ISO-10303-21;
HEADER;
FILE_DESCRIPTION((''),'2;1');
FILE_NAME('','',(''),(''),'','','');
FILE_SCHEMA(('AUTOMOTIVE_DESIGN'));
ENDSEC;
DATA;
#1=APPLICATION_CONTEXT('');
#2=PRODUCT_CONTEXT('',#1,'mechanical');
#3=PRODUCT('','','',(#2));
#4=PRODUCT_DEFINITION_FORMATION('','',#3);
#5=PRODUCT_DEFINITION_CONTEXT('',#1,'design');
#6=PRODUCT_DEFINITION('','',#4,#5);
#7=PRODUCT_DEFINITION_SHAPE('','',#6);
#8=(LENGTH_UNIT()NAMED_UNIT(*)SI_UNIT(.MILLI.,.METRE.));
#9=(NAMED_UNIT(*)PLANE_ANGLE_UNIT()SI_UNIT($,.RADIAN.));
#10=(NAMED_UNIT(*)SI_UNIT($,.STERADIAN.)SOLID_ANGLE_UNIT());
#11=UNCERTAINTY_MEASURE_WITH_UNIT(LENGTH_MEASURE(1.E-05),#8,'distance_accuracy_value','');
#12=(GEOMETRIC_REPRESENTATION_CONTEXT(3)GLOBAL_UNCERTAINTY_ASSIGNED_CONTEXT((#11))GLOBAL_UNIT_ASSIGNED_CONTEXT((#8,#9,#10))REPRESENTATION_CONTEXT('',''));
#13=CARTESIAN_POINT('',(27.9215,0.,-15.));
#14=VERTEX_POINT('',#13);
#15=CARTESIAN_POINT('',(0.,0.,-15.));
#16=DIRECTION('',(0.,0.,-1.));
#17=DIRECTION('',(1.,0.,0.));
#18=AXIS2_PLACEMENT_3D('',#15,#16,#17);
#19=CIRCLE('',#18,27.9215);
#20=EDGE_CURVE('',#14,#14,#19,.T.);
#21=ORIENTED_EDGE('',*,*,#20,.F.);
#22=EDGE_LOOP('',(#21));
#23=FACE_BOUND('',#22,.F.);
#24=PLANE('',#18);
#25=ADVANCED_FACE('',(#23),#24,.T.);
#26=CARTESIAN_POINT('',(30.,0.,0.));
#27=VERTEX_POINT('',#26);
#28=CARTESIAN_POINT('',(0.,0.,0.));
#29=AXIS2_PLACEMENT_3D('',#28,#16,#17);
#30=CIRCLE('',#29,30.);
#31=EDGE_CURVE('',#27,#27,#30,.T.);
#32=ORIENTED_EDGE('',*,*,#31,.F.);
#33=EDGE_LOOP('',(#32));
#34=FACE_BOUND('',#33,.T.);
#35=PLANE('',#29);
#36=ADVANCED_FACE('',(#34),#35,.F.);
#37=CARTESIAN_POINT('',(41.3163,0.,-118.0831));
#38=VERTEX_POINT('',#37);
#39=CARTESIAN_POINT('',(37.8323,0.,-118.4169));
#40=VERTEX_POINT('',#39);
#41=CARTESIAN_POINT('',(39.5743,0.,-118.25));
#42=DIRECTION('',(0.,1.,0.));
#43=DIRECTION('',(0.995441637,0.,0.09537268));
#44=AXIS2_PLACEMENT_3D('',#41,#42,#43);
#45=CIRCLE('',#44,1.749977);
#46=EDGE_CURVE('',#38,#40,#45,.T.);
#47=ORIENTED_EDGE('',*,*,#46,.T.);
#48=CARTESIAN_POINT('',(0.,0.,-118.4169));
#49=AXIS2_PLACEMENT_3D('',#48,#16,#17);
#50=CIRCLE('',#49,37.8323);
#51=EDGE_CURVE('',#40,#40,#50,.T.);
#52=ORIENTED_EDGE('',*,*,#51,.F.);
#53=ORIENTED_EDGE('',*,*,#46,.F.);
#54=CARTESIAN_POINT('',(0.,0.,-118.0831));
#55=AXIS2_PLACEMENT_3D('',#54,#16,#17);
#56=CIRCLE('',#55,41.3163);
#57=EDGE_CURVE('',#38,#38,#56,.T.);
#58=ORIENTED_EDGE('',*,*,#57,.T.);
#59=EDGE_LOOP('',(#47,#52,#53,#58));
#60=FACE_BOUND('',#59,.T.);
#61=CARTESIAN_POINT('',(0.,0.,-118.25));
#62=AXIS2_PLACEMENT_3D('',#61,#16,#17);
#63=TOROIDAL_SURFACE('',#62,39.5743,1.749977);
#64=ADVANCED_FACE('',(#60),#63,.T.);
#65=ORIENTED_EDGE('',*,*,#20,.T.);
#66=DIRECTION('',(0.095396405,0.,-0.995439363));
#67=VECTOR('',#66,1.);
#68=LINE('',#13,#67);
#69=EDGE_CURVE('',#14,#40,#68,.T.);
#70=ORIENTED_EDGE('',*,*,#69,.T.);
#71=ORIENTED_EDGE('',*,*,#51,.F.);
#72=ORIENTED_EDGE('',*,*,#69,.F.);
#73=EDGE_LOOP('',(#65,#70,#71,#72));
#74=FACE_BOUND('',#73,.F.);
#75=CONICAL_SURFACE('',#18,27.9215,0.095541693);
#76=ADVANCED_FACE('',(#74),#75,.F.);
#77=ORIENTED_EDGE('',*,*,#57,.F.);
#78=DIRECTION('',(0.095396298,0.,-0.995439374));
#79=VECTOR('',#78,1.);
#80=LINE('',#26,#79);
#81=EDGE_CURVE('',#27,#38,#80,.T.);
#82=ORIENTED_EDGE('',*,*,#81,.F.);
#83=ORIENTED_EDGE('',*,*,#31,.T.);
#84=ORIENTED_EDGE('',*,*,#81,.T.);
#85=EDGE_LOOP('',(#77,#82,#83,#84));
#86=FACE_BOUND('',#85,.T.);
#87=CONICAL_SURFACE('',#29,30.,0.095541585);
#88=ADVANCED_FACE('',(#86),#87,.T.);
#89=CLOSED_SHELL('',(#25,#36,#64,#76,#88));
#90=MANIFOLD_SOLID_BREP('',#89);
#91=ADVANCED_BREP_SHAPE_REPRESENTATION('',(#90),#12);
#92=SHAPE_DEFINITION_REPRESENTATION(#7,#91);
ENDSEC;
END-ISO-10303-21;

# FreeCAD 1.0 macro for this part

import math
import FreeCAD as App
import Part
import Sketcher

V = App.Vector

doc = App.newDocument("Part")
body = doc.addObject("PartDesign::Body", "Body")

sketch1 = body.newObject("Sketcher::SketchObject", "Sketch")
sketch1.AttachmentSupport = (doc.getObject("XZ_Plane"), [""])
sketch1.MapMode = "FlatFace"
sketch1.addGeometry([
    Part.LineSegment(V(0, -15, 0), V(0, 0, 0)),
    Part.LineSegment(V(0, 0, 0), V(30, 0, 0)),
    Part.LineSegment(V(30, 0, 0), V(41.3, -118.1, 0)),
    Part.ArcOfCircle(Part.Circle(V(39.6, -118.2, 0), V(0, 0, 1), 1.7), math.radians(-175), math.radians(5)),
    Part.LineSegment(V(37.8, -118.4, 0), V(27.9, -15, 0)),
    Part.LineSegment(V(27.9, -15, 0), V(0, -15, 0)),
], False)
sketch1.addConstraint([
    Sketcher.Constraint("Coincident", 0, 2, 1, 1),
    Sketcher.Constraint("Coincident", 1, 2, 2, 1),
    Sketcher.Constraint("Tangent", 2, 2, 3, 2),
    Sketcher.Constraint("Tangent", 3, 1, 4, 1),
    Sketcher.Constraint("Coincident", 4, 2, 5, 1),
    Sketcher.Constraint("Coincident", 5, 2, 0, 1),
    Sketcher.Constraint("Vertical", 0),
    Sketcher.Constraint("Horizontal", 1),
    Sketcher.Constraint("Horizontal", 5),
    Sketcher.Constraint("Coincident", 0, 2, -1, 1),
    Sketcher.Constraint("Parallel", 2, 4),
    Sketcher.Constraint("DistanceX", 1, 1, 1, 2, 30.0),
    Sketcher.Constraint("DistanceY", 0, 1, 0, 2, 15.0),
    Sketcher.Constraint("Radius", 3, 1.75),
    Sketcher.Constraint("DistanceY", 3, 3, -1, 1, 118.25),
    Sketcher.Constraint("Distance", 2, 118.624),
])
revolution = body.newObject("PartDesign::Revolution", "Revolution")
revolution.Profile = sketch1
revolution.ReferenceAxis = (sketch1, ["V_Axis"])
revolution.Angle = 360

doc.recompute()
